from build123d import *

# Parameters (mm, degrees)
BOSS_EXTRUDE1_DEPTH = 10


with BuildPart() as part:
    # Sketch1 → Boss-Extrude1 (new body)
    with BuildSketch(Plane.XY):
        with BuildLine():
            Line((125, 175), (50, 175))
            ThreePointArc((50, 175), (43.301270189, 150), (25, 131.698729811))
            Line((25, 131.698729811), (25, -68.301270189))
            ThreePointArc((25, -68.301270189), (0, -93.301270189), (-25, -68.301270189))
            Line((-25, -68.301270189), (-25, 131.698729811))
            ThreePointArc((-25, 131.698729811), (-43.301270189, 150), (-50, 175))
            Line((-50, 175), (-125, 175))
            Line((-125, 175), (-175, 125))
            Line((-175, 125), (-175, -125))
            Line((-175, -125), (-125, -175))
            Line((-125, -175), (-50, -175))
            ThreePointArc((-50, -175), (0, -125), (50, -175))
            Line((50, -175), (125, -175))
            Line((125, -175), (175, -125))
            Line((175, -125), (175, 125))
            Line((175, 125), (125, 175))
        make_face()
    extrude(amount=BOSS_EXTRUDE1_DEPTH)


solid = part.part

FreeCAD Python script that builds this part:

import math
import FreeCAD as App
import Part
import Sketcher
Q = App.Units.Quantity

doc = App.newDocument("Part")
body = doc.addObject("PartDesign::Body", "Body")

# Sketch on XY plane
sketch1 = body.newObject("Sketcher::SketchObject", "Sketch")
sketch1.AttachmentSupport = (doc.getObject("XY_Plane"), [""])
sketch1.MapMode = "FlatFace"
sketch1.addGeometry(Part.LineSegment(App.Vector(125, 175, 0), App.Vector(50, 175, 0)), False)
sketch1.addGeometry(Part.ArcOfCircle(Part.Circle(App.Vector(0, 175, 0), App.Vector(0, 0, 1), 50), math.radians(-60), math.radians(0)), False)
sketch1.addGeometry(Part.LineSegment(App.Vector(25, 132, 0), App.Vector(25, -68, 0)), False)
sketch1.addGeometry(Part.ArcOfCircle(Part.Circle(App.Vector(0, -68, 0), App.Vector(0, 0, 1), 25), math.radians(180), math.radians(360)), False)
sketch1.addGeometry(Part.LineSegment(App.Vector(-25, -68, 0), App.Vector(-25, 132, 0)), False)
sketch1.addGeometry(Part.ArcOfCircle(Part.Circle(App.Vector(0, 175, 0), App.Vector(0, 0, 1), 50), math.radians(-180), math.radians(-120)), False)
sketch1.addGeometry(Part.LineSegment(App.Vector(-50, 175, 0), App.Vector(-125, 175, 0)), False)
sketch1.addGeometry(Part.LineSegment(App.Vector(-125, 175, 0), App.Vector(-175, 125, 0)), False)
sketch1.addGeometry(Part.LineSegment(App.Vector(-175, 125, 0), App.Vector(-175, -125, 0)), False)
sketch1.addGeometry(Part.LineSegment(App.Vector(-175, -125, 0), App.Vector(-125, -175, 0)), False)
sketch1.addGeometry(Part.LineSegment(App.Vector(-125, -175, 0), App.Vector(-50, -175, 0)), False)
sketch1.addGeometry(Part.ArcOfCircle(Part.Circle(App.Vector(0, -175, 0), App.Vector(0, 0, 1), 50), math.radians(0), math.radians(180)), False)
sketch1.addGeometry(Part.LineSegment(App.Vector(50, -175, 0), App.Vector(125, -175, 0)), False)
sketch1.addGeometry(Part.LineSegment(App.Vector(125, -175, 0), App.Vector(175, -125, 0)), False)
sketch1.addGeometry(Part.LineSegment(App.Vector(175, -125, 0), App.Vector(175, 125, 0)), False)
sketch1.addGeometry(Part.LineSegment(App.Vector(175, 125, 0), App.Vector(125, 175, 0)), False)
sketch1.addConstraint(Sketcher.Constraint("Coincident", 0, 2, 1, 2))
sketch1.addConstraint(Sketcher.Constraint("Coincident", 1, 1, 2, 1))
sketch1.addConstraint(Sketcher.Constraint("Tangent", 2, 2, 3, 2))
sketch1.addConstraint(Sketcher.Constraint("Tangent", 3, 1, 4, 1))
sketch1.addConstraint(Sketcher.Constraint("Coincident", 4, 2, 5, 2))
sketch1.addConstraint(Sketcher.Constraint("Coincident", 5, 1, 6, 1))
sketch1.addConstraint(Sketcher.Constraint("Coincident", 6, 2, 7, 1))
sketch1.addConstraint(Sketcher.Constraint("Coincident", 7, 2, 8, 1))
sketch1.addConstraint(Sketcher.Constraint("Coincident", 8, 2, 9, 1))
sketch1.addConstraint(Sketcher.Constraint("Coincident", 9, 2, 10, 1))
sketch1.addConstraint(Sketcher.Constraint("Coincident", 10, 2, 11, 2))
sketch1.addConstraint(Sketcher.Constraint("Coincident", 11, 1, 12, 1))
sketch1.addConstraint(Sketcher.Constraint("Coincident", 12, 2, 13, 1))
sketch1.addConstraint(Sketcher.Constraint("Coincident", 13, 2, 14, 1))
sketch1.addConstraint(Sketcher.Constraint("Coincident", 14, 2, 15, 1))
sketch1.addConstraint(Sketcher.Constraint("Coincident", 15, 2, 0, 1))
sketch1.addConstraint(Sketcher.Constraint("Horizontal", 0))
sketch1.addConstraint(Sketcher.Constraint("Vertical", 2))
sketch1.addConstraint(Sketcher.Constraint("Vertical", 4))
sketch1.addConstraint(Sketcher.Constraint("Horizontal", 6))
sketch1.addConstraint(Sketcher.Constraint("Vertical", 8))
sketch1.addConstraint(Sketcher.Constraint("Horizontal", 10))
sketch1.addConstraint(Sketcher.Constraint("Horizontal", 12))
sketch1.addConstraint(Sketcher.Constraint("Vertical", 14))
sketch1.addConstraint(Sketcher.Constraint("Coincident", 5, 3, 1, 3))
sketch1.addConstraint(Sketcher.Constraint("Equal", 1, 5))
sketch1.addConstraint(Sketcher.Constraint("Equal", 5, 11))
sketch1.addConstraint(Sketcher.Constraint("Symmetric", 1, 3, 11, 3, -1, 1))
sketch1.addConstraint(Sketcher.Constraint("Symmetric", 6, 2, 12, 2, -1, 1))
sketch1.addConstraint(Sketcher.Constraint("Symmetric", 7, 2, 13, 2, -1, 1))
sketch1.addConstraint(Sketcher.Constraint("Symmetric", 9, 2, 15, 2, -1, 1))
sketch1.addConstraint(Sketcher.Constraint("Symmetric", 1, 1, 4, 2, -2))
sketch1.addConstraint(Sketcher.Constraint("Symmetric", 9, 2, 12, 2, -2))
sketch1.addConstraint(Sketcher.Constraint("Perpendicular", 7, 9))
sketch1.addConstraint(Sketcher.Constraint("Perpendicular", 13, 15))
sketch1.addConstraint(Sketcher.Constraint("Horizontal", 5, 3, 0, 2))
sketch1.addConstraint(Sketcher.Constraint("Horizontal", 8, 2, 13, 2))
sketch1.addConstraint(Sketcher.Constraint("Radius", 1, Q("50 mm")))
sketch1.addConstraint(Sketcher.Constraint("Radius", 3, Q("25 mm")))
sketch1.addConstraint(Sketcher.Constraint("DistanceX", 0, 2, 0, 1, Q("75 mm")))
sketch1.addConstraint(Sketcher.Constraint("DistanceY", 2, 2, 2, 1, Q("200 mm")))
sketch1.addConstraint(Sketcher.Constraint("DistanceY", 8, 2, 8, 1, Q("250 mm")))
sketch1.addConstraint(Sketcher.Constraint("DistanceY", -1, 1, 1, 3, Q("175 mm")))
pad1 = body.newObject("PartDesign::Pad", "Pad")
pad1.Profile = sketch1
pad1.Length = 10

doc.recompute()
